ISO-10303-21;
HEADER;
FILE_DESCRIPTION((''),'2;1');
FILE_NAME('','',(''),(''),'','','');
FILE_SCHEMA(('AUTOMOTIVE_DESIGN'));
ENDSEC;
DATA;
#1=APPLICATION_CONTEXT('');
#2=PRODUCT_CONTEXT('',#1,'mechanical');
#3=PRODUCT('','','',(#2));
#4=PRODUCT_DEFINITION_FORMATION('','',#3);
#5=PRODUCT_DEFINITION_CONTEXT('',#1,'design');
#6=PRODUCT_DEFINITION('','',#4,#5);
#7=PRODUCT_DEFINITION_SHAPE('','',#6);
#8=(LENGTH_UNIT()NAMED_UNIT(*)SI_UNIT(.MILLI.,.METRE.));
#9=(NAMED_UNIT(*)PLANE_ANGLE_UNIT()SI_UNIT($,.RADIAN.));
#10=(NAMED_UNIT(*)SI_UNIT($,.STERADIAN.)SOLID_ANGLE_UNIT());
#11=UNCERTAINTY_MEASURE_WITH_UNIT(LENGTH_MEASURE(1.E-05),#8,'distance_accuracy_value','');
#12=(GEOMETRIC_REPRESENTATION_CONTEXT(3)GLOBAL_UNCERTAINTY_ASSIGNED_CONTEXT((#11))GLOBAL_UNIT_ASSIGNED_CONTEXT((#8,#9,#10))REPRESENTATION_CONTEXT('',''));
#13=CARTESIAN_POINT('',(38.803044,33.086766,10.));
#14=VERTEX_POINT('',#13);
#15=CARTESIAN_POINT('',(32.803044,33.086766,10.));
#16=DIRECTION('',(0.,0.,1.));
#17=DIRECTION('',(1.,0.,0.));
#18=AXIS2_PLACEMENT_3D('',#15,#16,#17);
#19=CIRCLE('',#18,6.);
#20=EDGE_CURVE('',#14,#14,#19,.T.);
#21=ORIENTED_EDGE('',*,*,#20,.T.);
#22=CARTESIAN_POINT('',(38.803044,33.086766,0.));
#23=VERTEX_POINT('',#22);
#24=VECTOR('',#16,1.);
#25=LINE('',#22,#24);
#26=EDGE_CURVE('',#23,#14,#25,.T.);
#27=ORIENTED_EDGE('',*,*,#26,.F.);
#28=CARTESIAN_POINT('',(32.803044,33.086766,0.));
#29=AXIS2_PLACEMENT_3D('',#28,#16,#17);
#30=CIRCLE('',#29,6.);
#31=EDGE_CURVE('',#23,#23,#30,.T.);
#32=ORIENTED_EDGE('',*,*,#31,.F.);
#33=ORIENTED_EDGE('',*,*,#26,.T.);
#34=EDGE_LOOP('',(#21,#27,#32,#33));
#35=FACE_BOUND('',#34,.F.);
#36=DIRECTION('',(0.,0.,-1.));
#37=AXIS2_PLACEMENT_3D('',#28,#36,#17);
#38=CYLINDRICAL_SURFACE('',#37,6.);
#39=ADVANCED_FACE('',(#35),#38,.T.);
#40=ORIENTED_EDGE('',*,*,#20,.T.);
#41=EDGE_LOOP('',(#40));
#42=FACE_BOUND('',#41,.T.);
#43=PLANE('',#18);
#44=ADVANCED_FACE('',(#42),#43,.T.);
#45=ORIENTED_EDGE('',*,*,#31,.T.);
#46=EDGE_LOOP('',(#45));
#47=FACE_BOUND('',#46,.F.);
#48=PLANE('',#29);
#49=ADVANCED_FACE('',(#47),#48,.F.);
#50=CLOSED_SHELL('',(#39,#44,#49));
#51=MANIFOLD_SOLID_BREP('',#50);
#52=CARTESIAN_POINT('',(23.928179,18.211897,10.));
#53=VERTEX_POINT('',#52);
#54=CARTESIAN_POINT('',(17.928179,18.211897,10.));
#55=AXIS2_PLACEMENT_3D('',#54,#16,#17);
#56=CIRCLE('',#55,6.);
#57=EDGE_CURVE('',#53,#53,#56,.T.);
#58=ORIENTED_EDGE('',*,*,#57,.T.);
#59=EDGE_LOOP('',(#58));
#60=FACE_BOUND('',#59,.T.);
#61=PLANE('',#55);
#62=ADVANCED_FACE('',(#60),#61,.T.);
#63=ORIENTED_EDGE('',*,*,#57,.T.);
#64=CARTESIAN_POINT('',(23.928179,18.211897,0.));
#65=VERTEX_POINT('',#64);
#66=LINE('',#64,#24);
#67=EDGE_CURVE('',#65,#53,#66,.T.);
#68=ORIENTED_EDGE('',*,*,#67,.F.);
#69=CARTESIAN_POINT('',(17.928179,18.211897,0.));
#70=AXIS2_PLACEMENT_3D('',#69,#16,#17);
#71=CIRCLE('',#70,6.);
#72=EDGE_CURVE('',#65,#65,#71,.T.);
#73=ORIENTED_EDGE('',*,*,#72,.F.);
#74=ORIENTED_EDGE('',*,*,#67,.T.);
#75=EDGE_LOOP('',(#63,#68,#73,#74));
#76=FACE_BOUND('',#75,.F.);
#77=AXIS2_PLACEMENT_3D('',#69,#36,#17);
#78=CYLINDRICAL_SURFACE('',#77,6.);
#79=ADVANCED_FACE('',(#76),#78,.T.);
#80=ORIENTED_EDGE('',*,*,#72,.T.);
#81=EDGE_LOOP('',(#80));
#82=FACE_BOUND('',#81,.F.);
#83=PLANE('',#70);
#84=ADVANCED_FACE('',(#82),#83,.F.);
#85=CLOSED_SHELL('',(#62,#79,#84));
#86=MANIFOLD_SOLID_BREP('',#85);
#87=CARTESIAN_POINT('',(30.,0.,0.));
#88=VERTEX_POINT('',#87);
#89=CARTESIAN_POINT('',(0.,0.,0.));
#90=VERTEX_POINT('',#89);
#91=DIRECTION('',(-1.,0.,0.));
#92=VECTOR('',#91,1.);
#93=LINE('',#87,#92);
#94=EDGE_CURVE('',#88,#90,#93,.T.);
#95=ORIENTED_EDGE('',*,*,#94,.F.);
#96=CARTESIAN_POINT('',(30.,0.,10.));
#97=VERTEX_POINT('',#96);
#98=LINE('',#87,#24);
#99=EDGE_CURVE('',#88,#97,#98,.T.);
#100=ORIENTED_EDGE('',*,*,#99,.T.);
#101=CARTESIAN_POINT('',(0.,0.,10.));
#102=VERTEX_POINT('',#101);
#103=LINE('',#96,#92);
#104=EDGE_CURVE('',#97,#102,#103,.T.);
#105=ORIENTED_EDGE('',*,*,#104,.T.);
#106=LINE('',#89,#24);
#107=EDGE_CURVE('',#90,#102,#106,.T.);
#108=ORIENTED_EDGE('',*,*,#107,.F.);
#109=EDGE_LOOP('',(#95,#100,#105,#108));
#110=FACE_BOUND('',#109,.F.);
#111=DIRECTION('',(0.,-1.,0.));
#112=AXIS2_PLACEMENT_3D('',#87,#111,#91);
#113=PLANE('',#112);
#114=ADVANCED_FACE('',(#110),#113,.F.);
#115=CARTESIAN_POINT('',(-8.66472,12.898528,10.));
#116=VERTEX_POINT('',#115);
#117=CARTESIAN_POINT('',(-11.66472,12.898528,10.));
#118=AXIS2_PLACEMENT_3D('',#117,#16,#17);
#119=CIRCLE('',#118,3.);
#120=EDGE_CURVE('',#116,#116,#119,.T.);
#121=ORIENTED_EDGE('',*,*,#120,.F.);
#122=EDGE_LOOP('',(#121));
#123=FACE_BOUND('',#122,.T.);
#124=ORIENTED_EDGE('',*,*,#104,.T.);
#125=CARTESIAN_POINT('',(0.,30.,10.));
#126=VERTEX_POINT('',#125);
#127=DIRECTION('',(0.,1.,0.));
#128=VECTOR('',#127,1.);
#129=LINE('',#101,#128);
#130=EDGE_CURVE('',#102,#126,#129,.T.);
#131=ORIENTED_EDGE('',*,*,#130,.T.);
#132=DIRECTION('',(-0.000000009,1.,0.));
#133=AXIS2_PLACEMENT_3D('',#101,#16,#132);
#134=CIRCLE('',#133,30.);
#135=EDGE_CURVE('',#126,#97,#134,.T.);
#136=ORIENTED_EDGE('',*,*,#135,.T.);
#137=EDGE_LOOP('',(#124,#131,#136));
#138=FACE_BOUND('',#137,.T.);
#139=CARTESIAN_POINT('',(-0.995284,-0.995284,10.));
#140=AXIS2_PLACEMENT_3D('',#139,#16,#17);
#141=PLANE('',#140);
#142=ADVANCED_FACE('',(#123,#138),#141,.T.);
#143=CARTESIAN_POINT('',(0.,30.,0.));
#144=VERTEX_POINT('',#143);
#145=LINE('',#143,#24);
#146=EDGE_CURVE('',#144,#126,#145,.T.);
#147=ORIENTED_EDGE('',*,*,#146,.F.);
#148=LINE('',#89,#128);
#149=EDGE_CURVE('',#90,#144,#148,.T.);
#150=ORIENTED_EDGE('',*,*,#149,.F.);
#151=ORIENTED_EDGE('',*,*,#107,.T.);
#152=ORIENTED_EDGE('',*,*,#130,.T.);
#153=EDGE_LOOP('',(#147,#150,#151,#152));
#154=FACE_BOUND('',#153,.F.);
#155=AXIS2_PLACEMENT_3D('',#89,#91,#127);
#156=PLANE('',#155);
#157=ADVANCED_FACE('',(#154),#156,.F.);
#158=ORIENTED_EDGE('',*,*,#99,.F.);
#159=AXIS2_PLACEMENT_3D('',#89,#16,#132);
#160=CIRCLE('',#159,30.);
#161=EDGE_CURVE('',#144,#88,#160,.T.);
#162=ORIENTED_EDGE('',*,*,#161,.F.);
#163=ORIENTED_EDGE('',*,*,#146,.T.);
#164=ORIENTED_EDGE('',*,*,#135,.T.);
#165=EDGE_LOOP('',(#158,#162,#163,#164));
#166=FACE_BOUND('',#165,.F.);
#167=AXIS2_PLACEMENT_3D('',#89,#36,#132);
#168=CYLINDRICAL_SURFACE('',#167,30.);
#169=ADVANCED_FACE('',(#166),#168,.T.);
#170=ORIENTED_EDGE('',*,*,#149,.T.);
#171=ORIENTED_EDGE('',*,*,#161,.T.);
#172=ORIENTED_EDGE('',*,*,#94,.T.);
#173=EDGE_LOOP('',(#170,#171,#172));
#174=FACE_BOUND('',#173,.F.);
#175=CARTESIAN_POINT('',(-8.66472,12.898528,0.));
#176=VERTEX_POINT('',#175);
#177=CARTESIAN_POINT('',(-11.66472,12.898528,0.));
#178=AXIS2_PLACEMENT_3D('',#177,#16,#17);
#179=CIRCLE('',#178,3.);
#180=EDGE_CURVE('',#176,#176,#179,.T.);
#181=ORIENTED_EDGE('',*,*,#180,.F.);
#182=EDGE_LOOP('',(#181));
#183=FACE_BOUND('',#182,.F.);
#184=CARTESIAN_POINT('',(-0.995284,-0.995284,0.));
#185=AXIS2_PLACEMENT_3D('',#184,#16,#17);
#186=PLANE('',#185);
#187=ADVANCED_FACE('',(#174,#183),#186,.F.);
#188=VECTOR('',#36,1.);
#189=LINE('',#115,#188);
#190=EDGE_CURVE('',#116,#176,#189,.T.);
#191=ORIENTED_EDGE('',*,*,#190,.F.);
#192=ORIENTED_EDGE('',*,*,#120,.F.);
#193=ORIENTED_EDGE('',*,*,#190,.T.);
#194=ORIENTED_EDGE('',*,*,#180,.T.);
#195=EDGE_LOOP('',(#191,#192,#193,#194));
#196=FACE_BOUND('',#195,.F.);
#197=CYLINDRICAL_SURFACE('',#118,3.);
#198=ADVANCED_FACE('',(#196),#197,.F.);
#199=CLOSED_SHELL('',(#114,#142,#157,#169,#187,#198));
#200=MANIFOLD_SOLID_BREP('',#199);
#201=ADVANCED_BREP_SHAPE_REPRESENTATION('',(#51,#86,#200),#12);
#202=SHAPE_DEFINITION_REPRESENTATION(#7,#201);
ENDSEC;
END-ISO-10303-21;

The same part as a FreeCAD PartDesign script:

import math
import FreeCAD as App
import Part
import Sketcher
Q = App.Units.Quantity

doc = App.newDocument("Part")
body = doc.addObject("PartDesign::Body", "Body")

sketch1 = body.newObject("Sketcher::SketchObject", "Sketch")
sketch1.AttachmentSupport = (doc.getObject("XY_Plane"), [""])
sketch1.MapMode = "FlatFace"
sketch1.addGeometry([
    Part.LineSegment(App.Vector(0, 0, 0), App.Vector(0, 30, 0)),
    Part.ArcOfCircle(Part.Circle(App.Vector(0, 0, 0), App.Vector(0, 0, 1), 30), math.radians(90), math.radians(360)),
    Part.LineSegment(App.Vector(30, 0, 0), App.Vector(0, 0, 0)),
], False)
sketch1.addConstraint([
    Sketcher.Constraint("Coincident", 0, 2, 1, 1),
    Sketcher.Constraint("Coincident", 1, 2, 2, 1),
    Sketcher.Constraint("Coincident", 2, 2, 0, 1),
    Sketcher.Constraint("Vertical", 0),
    Sketcher.Constraint("Horizontal", 2),
    Sketcher.Constraint("Coincident", 1, 3, -1, 1),
    Sketcher.Constraint("Coincident", 2, 2, -1, 1),
    Sketcher.Constraint("Radius", 1, Q("30 mm")),
])
pad1 = body.newObject("PartDesign::Pad", "Pad")
pad1.Profile = sketch1
pad1.Length = 10

sketch2 = body.newObject("Sketcher::SketchObject", "Sketch001")
sketch2.AttachmentSupport = (doc.getObject("XY_Plane"), [""])
sketch2.MapMode = "FlatFace"
sketch2.AttachmentOffset = App.Placement(App.Vector(0, 0, 10), App.Rotation())
sketch2.addGeometry(Part.Circle(App.Vector(-11.7, 12.9, 0), App.Vector(0, 0, 1), 3), False)
sketch2.addConstraint([
    Sketcher.Constraint("Diameter", 0, Q("6 mm")),
    Sketcher.Constraint("DistanceX", 0, 3, -1, 1, Q("11.66472 mm")),
    Sketcher.Constraint("DistanceY", -1, 1, 0, 3, Q("12.898528 mm")),
])
pocket1 = body.newObject("PartDesign::Pocket", "Pocket")
pocket1.Profile = sketch2
pocket1.Length = 10
body2 = doc.addObject("PartDesign::Body", "Body001")

sketch3 = body2.newObject("Sketcher::SketchObject", "Sketch002")
sketch3.AttachmentSupport = (doc.getObject("XY_Plane001"), [""])
sketch3.MapMode = "FlatFace"
sketch3.addGeometry(Part.Circle(App.Vector(18, 18, 0), App.Vector(0, 0, 1), 6), False)
sketch3.addConstraint([
    Sketcher.Constraint("Diameter", 0, Q("12 mm")),
    Sketcher.Constraint("DistanceX", -1, 1, 0, 3, Q("17.928179 mm")),
    Sketcher.Constraint("DistanceY", -1, 1, 0, 3, Q("18.211897 mm")),
])
pad2 = body2.newObject("PartDesign::Pad", "Pad001")
pad2.Profile = sketch3
pad2.Length = 10
body3 = doc.addObject("PartDesign::Body", "Body002")

sketch4 = body3.newObject("Sketcher::SketchObject", "Sketch003")
sketch4.AttachmentSupport = (doc.getObject("XY_Plane002"), [""])
sketch4.MapMode = "FlatFace"
sketch4.addGeometry(Part.Circle(App.Vector(33, 33, 0), App.Vector(0, 0, 1), 6), False)
sketch4.addConstraint([
    Sketcher.Constraint("Diameter", 0, Q("12 mm")),
    Sketcher.Constraint("DistanceX", -1, 1, 0, 3, Q("32.803044 mm")),
    Sketcher.Constraint("DistanceY", -1, 1, 0, 3, Q("33.086766 mm")),
])
pad3 = body3.newObject("PartDesign::Pad", "Pad002")
pad3.Profile = sketch4
pad3.Length = 10

doc.recompute()
